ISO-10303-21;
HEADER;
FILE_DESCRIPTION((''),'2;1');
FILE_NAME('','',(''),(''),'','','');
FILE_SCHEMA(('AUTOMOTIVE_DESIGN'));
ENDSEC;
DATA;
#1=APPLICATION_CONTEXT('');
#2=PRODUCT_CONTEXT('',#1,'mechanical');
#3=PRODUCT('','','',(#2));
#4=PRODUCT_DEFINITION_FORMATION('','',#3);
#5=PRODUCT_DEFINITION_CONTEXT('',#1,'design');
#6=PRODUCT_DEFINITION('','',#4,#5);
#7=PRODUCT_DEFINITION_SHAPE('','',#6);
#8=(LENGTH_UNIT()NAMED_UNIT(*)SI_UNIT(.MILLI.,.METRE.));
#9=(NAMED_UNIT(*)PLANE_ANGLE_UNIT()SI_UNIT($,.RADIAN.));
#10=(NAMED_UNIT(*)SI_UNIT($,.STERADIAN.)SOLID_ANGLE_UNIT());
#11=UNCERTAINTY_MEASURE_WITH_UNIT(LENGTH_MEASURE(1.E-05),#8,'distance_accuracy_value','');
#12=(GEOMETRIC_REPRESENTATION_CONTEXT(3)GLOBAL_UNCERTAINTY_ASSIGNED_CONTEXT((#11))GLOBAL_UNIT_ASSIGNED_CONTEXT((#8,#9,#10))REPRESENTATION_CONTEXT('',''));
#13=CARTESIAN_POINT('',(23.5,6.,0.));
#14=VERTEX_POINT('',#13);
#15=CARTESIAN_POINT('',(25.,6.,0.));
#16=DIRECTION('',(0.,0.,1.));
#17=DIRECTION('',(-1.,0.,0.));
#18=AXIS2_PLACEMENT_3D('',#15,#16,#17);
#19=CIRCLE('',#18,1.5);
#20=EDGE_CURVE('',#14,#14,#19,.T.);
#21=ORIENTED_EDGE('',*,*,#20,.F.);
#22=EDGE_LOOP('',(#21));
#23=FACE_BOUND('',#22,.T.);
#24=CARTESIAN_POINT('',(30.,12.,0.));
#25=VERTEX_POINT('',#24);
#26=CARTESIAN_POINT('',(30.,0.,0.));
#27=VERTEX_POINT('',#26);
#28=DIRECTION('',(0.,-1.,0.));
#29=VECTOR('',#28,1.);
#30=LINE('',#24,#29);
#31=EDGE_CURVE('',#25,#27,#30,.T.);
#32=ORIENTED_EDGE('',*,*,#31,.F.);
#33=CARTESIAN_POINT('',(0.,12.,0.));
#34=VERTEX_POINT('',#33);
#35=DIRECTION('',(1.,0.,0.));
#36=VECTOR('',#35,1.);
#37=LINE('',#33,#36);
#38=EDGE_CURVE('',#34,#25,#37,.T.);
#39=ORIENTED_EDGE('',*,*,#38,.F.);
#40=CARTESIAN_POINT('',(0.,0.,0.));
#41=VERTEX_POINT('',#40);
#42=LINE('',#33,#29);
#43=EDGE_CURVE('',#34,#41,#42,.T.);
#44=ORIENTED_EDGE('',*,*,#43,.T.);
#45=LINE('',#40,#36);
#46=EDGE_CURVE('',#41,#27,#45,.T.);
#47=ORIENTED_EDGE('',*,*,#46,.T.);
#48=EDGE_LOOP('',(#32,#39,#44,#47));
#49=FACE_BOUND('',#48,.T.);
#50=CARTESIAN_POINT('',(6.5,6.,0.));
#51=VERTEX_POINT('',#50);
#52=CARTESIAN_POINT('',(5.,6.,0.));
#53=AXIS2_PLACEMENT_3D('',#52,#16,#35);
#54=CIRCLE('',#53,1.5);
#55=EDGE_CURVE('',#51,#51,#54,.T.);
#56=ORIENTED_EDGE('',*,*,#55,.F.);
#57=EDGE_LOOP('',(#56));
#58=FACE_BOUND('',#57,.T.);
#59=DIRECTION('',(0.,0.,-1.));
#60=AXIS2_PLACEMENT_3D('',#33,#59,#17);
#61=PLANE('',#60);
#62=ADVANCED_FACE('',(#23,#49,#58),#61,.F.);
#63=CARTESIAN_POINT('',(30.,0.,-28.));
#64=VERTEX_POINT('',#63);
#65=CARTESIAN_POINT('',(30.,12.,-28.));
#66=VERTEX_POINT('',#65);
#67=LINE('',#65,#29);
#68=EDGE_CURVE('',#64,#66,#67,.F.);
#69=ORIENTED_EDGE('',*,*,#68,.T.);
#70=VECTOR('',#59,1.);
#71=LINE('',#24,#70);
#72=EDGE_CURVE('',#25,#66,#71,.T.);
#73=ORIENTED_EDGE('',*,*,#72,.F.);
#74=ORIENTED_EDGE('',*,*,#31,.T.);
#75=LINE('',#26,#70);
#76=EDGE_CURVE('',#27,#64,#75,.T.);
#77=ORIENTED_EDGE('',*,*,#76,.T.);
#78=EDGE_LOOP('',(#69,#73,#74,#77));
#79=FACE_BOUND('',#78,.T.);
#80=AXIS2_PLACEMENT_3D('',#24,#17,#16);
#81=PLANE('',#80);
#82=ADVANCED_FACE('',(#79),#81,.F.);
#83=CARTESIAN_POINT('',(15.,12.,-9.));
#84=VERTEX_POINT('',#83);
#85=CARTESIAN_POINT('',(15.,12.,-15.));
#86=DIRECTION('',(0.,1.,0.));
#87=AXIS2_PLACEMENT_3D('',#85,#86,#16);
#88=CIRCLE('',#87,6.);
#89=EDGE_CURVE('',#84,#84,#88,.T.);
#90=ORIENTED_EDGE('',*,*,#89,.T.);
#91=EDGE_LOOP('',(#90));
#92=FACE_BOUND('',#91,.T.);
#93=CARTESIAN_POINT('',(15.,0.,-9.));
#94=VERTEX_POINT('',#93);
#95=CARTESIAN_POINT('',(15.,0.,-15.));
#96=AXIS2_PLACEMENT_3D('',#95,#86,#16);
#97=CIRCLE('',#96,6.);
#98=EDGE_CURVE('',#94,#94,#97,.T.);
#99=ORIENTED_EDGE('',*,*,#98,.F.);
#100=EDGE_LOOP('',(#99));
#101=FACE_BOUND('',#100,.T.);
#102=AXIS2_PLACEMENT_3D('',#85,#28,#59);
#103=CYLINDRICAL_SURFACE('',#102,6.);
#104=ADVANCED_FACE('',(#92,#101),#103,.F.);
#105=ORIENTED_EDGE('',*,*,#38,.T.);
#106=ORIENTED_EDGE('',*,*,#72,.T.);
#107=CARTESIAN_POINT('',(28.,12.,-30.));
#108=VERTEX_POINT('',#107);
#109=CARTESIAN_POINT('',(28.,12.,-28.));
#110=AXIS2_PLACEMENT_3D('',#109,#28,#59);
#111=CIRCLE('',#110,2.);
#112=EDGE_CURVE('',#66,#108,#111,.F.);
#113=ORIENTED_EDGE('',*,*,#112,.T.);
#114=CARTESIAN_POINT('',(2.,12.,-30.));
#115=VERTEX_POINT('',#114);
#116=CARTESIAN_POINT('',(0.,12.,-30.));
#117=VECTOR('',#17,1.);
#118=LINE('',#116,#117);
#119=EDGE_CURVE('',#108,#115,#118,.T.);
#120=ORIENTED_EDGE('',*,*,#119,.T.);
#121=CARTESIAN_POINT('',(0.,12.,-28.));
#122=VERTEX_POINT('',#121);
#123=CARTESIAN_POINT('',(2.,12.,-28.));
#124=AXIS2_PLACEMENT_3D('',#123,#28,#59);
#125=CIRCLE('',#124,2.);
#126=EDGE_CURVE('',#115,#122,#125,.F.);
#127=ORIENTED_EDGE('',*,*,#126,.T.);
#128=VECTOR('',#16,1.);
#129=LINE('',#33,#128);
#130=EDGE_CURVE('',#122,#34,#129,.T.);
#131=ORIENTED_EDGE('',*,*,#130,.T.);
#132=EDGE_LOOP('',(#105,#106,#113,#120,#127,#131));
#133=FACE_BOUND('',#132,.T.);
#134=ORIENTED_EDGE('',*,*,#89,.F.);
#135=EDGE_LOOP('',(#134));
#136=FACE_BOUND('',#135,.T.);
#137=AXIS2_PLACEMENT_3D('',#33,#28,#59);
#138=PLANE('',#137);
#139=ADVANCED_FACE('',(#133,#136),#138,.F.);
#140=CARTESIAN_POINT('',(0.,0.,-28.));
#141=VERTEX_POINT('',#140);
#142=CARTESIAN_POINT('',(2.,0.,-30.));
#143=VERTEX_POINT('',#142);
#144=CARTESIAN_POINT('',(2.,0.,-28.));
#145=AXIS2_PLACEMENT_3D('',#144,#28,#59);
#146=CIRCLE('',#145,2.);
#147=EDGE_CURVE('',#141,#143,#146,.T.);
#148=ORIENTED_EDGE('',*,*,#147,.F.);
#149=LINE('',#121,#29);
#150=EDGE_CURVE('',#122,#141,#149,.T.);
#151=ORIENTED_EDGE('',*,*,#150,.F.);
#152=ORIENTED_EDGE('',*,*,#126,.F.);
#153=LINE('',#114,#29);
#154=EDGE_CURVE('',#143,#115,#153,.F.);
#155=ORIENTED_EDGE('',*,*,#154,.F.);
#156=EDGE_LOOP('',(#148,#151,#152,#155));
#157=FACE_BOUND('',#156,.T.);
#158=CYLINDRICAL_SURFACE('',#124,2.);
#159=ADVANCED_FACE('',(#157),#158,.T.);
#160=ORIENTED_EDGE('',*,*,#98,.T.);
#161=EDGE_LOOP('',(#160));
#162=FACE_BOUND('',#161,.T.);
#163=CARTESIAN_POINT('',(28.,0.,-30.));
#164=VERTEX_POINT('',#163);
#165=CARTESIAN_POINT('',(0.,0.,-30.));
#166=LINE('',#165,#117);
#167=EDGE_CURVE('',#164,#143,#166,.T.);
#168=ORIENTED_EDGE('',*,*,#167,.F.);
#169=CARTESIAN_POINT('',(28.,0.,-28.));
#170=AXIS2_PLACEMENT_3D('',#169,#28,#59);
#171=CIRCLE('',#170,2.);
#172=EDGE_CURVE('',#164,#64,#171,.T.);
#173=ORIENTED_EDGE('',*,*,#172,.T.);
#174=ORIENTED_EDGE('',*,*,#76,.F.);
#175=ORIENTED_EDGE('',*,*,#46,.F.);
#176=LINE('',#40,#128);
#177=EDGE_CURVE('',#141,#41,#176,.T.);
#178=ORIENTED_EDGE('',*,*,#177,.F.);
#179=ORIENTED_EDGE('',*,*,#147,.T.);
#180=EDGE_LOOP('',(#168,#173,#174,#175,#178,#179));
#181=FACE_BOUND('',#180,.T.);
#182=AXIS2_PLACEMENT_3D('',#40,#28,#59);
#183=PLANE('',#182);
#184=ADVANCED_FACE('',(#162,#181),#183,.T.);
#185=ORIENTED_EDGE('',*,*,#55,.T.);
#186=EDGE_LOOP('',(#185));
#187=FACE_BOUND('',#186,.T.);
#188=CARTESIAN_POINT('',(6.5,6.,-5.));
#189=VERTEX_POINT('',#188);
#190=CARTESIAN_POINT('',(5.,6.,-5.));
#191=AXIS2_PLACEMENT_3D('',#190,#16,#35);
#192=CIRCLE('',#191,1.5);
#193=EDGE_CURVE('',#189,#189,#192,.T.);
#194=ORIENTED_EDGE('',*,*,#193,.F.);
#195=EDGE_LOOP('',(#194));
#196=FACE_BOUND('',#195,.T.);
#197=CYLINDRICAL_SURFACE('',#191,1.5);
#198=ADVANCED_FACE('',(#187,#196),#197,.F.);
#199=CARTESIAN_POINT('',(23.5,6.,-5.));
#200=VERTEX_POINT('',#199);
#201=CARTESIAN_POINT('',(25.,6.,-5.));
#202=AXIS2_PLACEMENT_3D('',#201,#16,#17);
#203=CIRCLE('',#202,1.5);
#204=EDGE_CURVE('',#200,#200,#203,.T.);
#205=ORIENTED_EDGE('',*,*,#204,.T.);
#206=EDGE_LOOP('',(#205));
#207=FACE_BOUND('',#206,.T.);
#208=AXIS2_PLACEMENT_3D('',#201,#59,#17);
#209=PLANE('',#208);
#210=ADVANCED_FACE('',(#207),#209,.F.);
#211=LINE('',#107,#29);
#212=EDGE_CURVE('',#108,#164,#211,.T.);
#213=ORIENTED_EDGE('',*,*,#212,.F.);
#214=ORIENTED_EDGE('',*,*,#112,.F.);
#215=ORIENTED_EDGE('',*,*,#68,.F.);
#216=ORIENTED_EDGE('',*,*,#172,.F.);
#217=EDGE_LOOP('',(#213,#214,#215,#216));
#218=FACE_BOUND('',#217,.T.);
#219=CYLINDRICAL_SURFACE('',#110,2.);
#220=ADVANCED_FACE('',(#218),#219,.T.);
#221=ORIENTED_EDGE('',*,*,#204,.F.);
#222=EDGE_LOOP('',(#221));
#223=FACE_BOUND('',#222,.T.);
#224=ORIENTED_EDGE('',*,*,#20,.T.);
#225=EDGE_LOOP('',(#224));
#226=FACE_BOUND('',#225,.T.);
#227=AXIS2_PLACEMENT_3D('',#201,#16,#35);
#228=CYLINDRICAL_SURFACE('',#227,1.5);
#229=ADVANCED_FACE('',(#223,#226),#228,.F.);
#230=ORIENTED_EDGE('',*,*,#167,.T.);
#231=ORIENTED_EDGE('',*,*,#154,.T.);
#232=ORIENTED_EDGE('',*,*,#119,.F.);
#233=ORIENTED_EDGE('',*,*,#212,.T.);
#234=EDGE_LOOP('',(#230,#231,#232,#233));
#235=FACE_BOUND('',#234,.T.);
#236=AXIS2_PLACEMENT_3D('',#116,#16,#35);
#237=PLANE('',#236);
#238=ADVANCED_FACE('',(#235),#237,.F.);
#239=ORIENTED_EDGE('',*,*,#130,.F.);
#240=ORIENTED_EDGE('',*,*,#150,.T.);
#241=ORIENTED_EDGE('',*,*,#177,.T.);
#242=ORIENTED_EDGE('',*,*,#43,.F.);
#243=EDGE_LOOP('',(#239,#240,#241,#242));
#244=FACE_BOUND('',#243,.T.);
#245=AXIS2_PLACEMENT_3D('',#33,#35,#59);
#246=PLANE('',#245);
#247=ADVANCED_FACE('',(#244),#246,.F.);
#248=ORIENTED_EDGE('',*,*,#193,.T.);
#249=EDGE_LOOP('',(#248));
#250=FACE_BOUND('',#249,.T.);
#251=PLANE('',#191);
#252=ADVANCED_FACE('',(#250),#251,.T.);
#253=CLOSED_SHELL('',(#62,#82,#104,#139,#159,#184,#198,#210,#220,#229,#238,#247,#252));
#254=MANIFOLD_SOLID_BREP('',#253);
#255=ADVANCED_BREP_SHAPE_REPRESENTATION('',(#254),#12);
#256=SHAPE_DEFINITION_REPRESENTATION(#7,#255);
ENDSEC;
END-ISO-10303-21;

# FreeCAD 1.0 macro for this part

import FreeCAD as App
import Part
import Sketcher

V = App.Vector
Q = App.Units.Quantity


def edges_at(feature, points):
    """Names of the edges that pass closest to the given points."""
    edges = feature.Shape.Edges
    near = lambda p: min(range(len(edges)), key=lambda i: edges[i].distToShape(Part.Vertex(*p))[0])
    return sorted({f"Edge{near(p) + 1}" for p in points})


def add_polygon(sketch, points):
    """Adds a closed chain of lines whose ends are joined by coincident constraints."""
    first, n = sketch.GeometryCount, len(points)
    for a, b in zip(points, points[1:] + points[:1]):
        sketch.addGeometry(Part.LineSegment(App.Vector(*a, 0), App.Vector(*b, 0)), False)
    for i in range(n):
        sketch.addConstraint(Sketcher.Constraint("Coincident", first + i, 2, first + (i + 1) % n, 1))

doc = App.newDocument("Part")
body = doc.addObject("PartDesign::Body", "Body")

sketch1 = body.newObject("Sketcher::SketchObject", "Sketch")
sketch1.AttachmentSupport = (doc.getObject("XZ_Plane"), [""])
sketch1.MapMode = "FlatFace"
add_polygon(sketch1, [(0, -30), (0, 0), (30, 0), (30, -30)])
sketch1.addGeometry(Part.Circle(V(15, -15, 0), V(0, 0, 1), 6), False)
sketch1.addConstraint([
    Sketcher.Constraint("Vertical", 0),
    Sketcher.Constraint("Horizontal", 1),
    Sketcher.Constraint("Vertical", 2),
    Sketcher.Constraint("Horizontal", 3),
    Sketcher.Constraint("Coincident", 0, 2, -1, 1),
    Sketcher.Constraint("Equal", 3, 0),
    Sketcher.Constraint("Diameter", 4, Q("12 mm")),
    Sketcher.Constraint("DistanceX", 1, 1, 1, 2, Q("30 mm")),
    Sketcher.Constraint("DistanceX", -1, 1, 4, 3, Q("15 mm")),
    Sketcher.Constraint("DistanceY", 4, 3, -1, 1, Q("15 mm")),
])
pad1 = body.newObject("PartDesign::Pad", "Pad")
pad1.Profile = sketch1
pad1.Length = 12
pad1.Reversed = True
doc.recompute()

fillet = body.newObject("PartDesign::Fillet", "Fillet")
fillet.Base = (pad1, edges_at(pad1, [(0, 6, -30), (30, 6, -30)]))
fillet.Radius = 2

sketch2 = body.newObject("Sketcher::SketchObject", "Sketch001")
sketch2.AttachmentSupport = (doc.getObject("XY_Plane"), [""])
sketch2.MapMode = "FlatFace"
sketch2.addGeometry([
    Part.Circle(V(5, 6, 0), V(0, 0, 1), 1.5),
    Part.Circle(V(25, 6, 0), V(0, 0, 1), 1.5),
], False)
sketch2.addConstraint([
    Sketcher.Constraint("Equal", 0, 1),
    Sketcher.Constraint("Horizontal", 0, 3, 1, 3),
    Sketcher.Constraint("Diameter", 0, Q("3 mm")),
    Sketcher.Constraint("DistanceX", -1, 1, 0, 3, Q("5 mm")),
    Sketcher.Constraint("DistanceY", -1, 1, 0, 3, Q("6 mm")),
    Sketcher.Constraint("DistanceX", -1, 1, 1, 3, Q("25 mm")),
])
pocket1 = body.newObject("PartDesign::Pocket", "Pocket")
pocket1.Profile = sketch2
pocket1.Length = 5

doc.recompute()
